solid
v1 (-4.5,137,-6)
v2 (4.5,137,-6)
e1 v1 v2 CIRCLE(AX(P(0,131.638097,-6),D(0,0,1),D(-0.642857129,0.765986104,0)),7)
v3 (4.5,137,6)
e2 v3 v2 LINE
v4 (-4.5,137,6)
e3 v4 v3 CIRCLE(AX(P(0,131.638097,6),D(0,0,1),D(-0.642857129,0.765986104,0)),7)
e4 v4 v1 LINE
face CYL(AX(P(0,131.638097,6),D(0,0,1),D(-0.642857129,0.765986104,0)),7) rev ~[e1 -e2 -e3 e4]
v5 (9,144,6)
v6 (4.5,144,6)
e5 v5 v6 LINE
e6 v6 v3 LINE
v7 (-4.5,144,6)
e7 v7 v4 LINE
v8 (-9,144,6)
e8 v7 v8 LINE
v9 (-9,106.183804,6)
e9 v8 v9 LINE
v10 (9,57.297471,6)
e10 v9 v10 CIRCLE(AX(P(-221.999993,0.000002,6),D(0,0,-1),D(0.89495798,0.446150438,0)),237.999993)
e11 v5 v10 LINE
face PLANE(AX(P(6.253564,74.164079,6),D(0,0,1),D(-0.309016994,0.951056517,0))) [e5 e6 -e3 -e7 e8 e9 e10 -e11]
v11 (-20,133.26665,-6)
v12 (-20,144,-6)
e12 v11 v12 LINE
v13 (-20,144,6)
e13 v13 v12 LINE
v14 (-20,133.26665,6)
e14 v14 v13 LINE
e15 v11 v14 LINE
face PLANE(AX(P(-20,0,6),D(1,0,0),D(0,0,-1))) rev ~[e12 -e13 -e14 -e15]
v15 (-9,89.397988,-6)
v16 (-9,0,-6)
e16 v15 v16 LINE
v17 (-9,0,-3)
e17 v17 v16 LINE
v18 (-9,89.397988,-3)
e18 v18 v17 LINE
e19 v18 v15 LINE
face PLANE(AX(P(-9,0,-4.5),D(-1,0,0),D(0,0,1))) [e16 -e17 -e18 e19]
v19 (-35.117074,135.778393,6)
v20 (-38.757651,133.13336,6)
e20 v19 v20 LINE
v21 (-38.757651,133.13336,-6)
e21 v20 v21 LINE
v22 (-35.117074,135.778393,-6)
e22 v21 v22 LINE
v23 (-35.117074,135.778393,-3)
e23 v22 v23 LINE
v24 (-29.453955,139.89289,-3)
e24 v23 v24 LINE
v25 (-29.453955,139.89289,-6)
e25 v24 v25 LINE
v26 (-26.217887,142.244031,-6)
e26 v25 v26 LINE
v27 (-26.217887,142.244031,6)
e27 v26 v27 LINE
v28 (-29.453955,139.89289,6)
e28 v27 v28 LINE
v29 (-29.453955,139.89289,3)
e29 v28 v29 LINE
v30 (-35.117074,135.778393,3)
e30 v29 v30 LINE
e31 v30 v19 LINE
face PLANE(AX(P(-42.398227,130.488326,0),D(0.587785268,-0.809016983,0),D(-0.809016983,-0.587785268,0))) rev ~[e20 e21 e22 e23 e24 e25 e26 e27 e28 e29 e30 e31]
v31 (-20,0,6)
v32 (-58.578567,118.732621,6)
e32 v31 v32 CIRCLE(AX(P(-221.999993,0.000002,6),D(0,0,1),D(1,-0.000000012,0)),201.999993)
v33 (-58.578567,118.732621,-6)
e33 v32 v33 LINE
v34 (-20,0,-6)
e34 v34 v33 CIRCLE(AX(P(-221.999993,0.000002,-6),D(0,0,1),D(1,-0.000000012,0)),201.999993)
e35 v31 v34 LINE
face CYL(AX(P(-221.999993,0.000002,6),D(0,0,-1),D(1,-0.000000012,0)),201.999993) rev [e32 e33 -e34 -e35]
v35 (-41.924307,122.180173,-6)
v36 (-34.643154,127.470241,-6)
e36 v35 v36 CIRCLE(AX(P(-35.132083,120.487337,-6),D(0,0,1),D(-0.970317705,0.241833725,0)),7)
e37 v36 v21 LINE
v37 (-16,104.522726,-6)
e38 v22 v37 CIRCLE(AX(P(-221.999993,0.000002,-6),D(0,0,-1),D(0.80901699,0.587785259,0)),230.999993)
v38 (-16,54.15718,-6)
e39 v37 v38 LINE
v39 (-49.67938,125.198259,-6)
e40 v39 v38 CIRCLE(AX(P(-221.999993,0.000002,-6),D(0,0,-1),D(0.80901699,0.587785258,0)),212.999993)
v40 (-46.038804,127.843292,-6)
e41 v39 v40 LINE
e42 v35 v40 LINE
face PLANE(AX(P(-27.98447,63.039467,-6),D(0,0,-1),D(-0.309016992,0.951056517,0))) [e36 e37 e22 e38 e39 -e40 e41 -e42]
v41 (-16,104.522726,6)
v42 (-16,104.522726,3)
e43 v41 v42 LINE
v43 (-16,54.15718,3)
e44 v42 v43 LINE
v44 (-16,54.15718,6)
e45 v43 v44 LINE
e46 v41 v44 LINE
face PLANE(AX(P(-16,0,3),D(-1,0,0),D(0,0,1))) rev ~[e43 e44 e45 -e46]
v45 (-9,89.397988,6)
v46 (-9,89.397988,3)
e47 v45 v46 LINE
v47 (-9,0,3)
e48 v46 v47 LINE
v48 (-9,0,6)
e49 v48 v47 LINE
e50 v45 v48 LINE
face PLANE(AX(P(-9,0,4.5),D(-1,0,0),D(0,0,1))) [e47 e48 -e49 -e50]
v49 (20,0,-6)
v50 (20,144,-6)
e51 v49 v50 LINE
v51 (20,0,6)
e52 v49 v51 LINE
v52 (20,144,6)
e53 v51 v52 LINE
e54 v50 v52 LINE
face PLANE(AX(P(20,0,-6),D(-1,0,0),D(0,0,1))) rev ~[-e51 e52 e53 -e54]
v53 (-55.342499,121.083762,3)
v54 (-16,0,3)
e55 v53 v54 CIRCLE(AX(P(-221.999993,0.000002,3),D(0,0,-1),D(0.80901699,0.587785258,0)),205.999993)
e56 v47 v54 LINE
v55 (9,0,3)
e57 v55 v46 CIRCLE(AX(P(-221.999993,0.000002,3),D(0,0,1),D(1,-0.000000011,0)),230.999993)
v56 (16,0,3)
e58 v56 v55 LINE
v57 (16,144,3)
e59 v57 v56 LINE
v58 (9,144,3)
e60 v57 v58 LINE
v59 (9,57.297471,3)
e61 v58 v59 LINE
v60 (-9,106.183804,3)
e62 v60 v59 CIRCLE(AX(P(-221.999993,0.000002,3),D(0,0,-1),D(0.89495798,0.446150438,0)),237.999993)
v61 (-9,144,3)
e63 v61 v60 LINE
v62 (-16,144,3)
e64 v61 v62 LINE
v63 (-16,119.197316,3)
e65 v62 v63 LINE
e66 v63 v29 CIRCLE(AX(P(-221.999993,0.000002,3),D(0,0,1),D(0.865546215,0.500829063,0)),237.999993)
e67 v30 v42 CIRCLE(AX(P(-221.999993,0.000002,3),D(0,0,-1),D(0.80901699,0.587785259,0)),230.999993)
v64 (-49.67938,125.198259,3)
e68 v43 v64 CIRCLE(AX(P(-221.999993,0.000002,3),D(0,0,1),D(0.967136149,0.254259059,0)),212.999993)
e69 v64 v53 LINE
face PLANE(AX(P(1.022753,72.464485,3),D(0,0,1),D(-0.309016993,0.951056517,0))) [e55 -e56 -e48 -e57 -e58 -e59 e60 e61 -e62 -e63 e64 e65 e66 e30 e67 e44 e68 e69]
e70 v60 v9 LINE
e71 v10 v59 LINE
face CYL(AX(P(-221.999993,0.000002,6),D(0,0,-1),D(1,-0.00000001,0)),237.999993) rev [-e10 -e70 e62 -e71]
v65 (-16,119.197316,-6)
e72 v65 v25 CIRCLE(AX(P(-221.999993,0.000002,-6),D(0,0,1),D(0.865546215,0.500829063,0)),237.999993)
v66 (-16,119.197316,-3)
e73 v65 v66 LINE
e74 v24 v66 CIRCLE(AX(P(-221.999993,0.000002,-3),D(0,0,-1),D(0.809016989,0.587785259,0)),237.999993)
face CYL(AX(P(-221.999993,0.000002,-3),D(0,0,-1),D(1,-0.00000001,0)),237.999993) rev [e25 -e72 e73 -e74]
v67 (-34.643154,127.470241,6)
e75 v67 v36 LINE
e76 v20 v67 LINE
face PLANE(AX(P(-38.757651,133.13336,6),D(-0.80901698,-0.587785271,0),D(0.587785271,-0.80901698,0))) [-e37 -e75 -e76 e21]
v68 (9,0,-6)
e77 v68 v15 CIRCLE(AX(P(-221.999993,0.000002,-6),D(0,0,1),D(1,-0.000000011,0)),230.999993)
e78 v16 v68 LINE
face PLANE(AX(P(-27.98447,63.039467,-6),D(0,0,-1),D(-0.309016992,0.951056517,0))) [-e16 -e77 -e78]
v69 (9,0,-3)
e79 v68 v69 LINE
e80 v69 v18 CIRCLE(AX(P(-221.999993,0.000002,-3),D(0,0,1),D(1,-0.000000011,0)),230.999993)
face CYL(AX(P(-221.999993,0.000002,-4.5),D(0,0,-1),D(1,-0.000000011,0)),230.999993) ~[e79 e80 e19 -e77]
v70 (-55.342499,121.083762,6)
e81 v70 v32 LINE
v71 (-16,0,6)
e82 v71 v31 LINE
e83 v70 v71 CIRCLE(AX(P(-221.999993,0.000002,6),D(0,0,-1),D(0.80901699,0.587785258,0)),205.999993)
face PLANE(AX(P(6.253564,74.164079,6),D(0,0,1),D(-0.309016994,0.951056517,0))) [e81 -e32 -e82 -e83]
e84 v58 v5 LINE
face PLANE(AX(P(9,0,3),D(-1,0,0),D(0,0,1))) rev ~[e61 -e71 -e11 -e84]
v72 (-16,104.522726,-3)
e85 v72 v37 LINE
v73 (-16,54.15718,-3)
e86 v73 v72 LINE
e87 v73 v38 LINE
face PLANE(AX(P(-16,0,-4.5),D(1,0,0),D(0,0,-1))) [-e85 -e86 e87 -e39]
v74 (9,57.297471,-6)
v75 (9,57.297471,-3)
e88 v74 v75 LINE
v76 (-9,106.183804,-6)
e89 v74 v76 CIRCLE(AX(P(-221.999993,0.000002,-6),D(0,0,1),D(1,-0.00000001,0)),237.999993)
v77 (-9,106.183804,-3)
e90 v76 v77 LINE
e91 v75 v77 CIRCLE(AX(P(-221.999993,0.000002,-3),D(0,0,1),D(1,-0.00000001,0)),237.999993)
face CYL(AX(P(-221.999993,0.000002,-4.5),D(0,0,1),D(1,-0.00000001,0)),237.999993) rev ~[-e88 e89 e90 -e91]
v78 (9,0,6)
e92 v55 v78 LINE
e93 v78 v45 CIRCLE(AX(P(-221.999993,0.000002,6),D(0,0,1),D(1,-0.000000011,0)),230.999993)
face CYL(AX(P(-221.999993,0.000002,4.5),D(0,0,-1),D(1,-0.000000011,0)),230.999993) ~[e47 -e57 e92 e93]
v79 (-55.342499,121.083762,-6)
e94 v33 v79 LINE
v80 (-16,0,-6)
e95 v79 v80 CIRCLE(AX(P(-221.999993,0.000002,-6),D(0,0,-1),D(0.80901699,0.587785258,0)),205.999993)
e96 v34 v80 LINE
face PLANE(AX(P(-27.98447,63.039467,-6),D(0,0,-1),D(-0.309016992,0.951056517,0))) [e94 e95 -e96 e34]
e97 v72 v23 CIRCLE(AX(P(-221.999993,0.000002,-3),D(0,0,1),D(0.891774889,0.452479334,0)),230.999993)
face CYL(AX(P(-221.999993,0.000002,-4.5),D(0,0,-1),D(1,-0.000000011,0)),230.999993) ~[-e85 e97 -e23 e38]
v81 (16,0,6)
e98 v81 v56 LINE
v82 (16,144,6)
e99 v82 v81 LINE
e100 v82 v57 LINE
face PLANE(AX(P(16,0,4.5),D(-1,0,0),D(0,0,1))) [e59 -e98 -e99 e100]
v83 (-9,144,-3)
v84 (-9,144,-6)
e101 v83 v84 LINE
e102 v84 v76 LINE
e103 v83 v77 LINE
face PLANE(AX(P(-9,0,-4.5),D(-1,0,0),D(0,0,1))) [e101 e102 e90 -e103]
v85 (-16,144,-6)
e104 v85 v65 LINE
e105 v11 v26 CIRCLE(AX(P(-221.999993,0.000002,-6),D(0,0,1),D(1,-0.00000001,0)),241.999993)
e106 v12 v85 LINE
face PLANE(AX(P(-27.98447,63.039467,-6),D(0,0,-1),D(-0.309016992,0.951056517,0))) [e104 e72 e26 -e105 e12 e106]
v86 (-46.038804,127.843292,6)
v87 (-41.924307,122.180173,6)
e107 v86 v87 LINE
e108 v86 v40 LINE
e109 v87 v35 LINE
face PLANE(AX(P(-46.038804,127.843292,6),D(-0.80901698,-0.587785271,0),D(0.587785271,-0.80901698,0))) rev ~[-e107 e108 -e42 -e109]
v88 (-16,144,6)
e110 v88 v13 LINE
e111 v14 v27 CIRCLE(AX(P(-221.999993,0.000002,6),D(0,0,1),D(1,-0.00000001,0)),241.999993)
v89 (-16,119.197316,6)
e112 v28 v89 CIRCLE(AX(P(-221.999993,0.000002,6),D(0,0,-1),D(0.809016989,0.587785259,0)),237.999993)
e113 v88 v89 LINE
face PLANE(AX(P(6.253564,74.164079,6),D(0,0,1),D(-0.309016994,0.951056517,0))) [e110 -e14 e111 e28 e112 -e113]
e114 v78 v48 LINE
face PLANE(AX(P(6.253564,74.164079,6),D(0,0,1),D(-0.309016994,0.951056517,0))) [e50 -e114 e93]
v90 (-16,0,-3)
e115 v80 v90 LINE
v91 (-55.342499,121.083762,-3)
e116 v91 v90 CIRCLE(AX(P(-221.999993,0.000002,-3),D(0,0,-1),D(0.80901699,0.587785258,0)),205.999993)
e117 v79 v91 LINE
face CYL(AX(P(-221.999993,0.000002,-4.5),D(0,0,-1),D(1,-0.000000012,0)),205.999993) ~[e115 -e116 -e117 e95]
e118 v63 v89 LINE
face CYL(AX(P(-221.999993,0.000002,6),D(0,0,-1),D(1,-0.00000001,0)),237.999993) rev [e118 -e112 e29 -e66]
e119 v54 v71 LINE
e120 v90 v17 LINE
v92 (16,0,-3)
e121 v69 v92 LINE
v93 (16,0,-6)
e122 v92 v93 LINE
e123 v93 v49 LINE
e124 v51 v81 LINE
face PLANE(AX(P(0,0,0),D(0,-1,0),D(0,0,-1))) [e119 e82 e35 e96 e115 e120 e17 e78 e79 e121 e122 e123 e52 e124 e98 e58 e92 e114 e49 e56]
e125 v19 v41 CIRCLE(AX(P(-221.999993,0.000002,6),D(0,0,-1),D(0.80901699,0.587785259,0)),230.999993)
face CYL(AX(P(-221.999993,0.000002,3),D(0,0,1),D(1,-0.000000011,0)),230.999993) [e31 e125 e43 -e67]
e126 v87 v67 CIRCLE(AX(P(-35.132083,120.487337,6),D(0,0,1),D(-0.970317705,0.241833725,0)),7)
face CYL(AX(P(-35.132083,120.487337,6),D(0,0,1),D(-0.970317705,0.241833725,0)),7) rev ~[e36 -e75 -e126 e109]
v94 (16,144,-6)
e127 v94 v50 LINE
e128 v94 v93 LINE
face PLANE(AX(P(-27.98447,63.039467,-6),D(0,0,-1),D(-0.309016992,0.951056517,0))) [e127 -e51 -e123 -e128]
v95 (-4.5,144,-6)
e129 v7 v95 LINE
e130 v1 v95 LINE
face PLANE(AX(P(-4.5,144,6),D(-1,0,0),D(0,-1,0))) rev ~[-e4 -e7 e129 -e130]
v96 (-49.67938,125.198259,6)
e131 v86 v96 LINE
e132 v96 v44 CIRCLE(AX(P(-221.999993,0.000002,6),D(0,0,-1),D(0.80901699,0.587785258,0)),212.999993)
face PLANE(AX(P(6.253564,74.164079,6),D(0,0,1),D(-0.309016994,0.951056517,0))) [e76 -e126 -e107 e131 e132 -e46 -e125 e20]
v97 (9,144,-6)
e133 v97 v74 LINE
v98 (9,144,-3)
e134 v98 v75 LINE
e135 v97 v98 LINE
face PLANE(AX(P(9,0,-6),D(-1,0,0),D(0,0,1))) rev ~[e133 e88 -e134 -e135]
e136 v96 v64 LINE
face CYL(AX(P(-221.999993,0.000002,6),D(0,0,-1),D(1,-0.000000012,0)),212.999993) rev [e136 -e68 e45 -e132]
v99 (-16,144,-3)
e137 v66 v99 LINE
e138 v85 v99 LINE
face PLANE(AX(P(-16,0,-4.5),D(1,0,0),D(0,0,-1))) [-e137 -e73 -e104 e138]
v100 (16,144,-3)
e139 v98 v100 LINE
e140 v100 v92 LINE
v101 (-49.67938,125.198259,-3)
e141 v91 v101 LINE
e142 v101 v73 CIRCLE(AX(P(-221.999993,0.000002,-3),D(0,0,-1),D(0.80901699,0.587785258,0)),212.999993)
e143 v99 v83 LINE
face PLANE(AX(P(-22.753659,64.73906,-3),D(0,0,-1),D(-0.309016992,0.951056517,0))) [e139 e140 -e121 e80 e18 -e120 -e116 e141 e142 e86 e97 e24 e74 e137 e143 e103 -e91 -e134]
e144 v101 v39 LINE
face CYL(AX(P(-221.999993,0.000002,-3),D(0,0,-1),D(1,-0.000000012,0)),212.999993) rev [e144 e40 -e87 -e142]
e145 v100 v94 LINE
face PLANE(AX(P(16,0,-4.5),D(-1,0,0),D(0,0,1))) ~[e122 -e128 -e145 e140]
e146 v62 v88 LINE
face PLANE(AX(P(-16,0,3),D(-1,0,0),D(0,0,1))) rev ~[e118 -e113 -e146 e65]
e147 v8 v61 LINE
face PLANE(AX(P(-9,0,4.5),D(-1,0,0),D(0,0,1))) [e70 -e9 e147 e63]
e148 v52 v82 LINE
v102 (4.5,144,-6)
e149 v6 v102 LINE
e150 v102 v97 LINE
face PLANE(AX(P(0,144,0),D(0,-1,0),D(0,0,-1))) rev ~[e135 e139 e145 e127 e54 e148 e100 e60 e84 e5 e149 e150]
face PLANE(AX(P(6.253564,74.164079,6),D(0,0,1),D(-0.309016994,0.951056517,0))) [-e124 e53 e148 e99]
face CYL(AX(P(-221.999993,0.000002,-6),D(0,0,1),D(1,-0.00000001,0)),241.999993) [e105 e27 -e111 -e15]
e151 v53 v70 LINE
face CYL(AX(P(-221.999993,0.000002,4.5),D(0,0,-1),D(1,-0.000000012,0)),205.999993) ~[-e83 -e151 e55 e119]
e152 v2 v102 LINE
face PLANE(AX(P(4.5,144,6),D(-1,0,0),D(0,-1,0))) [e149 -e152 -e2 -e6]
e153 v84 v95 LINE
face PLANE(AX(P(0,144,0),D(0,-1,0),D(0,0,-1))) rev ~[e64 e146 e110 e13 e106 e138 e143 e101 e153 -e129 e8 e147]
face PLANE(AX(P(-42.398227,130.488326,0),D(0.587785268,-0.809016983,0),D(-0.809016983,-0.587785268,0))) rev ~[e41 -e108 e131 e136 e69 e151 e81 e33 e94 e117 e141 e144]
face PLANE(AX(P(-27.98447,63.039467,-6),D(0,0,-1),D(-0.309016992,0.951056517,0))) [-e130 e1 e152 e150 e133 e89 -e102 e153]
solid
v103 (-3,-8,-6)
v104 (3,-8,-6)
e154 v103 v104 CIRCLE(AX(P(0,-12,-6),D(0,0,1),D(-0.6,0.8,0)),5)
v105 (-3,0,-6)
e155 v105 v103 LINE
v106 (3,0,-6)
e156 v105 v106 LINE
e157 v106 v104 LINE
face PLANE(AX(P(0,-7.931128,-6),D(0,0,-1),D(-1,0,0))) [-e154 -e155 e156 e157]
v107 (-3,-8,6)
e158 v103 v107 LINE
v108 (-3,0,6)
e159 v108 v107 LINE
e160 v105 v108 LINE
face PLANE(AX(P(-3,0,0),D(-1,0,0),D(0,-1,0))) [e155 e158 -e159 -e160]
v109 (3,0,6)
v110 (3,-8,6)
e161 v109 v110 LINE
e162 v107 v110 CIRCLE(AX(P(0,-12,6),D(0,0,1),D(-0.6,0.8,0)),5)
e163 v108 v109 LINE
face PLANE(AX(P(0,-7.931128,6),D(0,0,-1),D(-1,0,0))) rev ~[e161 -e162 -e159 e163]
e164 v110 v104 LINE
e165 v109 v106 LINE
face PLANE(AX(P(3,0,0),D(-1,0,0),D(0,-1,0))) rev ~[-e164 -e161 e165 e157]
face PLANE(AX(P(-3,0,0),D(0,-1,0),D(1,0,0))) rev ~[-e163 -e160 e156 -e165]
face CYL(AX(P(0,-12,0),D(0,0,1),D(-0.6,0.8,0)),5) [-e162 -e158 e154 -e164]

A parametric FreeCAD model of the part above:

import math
import FreeCAD as App
import Part
import Sketcher
from FreeCAD import Vector
Q = App.Units.Quantity

doc = App.newDocument("Part")
body = doc.addObject("PartDesign::Body", "Body")

sketch1 = body.newObject("Sketcher::SketchObject", "Sketch")
sketch1.AttachmentSupport = (doc.getObject("XZ_Plane"), [""])
sketch1.MapMode = "FlatFace"
sketch1.addGeometry(Part.LineSegment(Vector(-20, 6, 0), Vector(-20, -6, 0)), False)
sketch1.addGeometry(Part.LineSegment(Vector(-20, -6, 0), Vector(-16, -6, 0)), False)
sketch1.addGeometry(Part.LineSegment(Vector(-16, -6, 0), Vector(-16, -3, 0)), False)
sketch1.addGeometry(Part.LineSegment(Vector(-16, -3, 0), Vector(-9, -3, 0)), False)
sketch1.addGeometry(Part.LineSegment(Vector(-9, -3, 0), Vector(-9, -6, 0)), False)
sketch1.addGeometry(Part.LineSegment(Vector(-9, -6, 0), Vector(9, -6, 0)), False)
sketch1.addGeometry(Part.LineSegment(Vector(9, -6, 0), Vector(9, -3, 0)), False)
sketch1.addGeometry(Part.LineSegment(Vector(9, -3, 0), Vector(16, -3, 0)), False)
sketch1.addGeometry(Part.LineSegment(Vector(16, -3, 0), Vector(16, -6, 0)), False)
sketch1.addGeometry(Part.LineSegment(Vector(16, -6, 0), Vector(20, -6, 0)), False)
sketch1.addGeometry(Part.LineSegment(Vector(20, -6, 0), Vector(20, 6, 0)), False)
sketch1.addGeometry(Part.LineSegment(Vector(20, 6, 0), Vector(16, 6, 0)), False)
sketch1.addGeometry(Part.LineSegment(Vector(16, 6, 0), Vector(16, 3, 0)), False)
sketch1.addGeometry(Part.LineSegment(Vector(16, 3, 0), Vector(9, 3, 0)), False)
sketch1.addGeometry(Part.LineSegment(Vector(9, 3, 0), Vector(9, 6, 0)), False)
sketch1.addGeometry(Part.LineSegment(Vector(9, 6, 0), Vector(-9, 6, 0)), False)
sketch1.addGeometry(Part.LineSegment(Vector(-9, 6, 0), Vector(-9, 3, 0)), False)
sketch1.addGeometry(Part.LineSegment(Vector(-9, 3, 0), Vector(-16, 3, 0)), False)
sketch1.addGeometry(Part.LineSegment(Vector(-16, 3, 0), Vector(-16, 6, 0)), False)
sketch1.addGeometry(Part.LineSegment(Vector(-16, 6, 0), Vector(-20, 6, 0)), False)
sketch1.addConstraint(Sketcher.Constraint("Coincident", 0, 2, 1, 1))
sketch1.addConstraint(Sketcher.Constraint("Coincident", 1, 2, 2, 1))
sketch1.addConstraint(Sketcher.Constraint("Coincident", 2, 2, 3, 1))
sketch1.addConstraint(Sketcher.Constraint("Coincident", 3, 2, 4, 1))
sketch1.addConstraint(Sketcher.Constraint("Coincident", 4, 2, 5, 1))
sketch1.addConstraint(Sketcher.Constraint("Coincident", 5, 2, 6, 1))
sketch1.addConstraint(Sketcher.Constraint("Coincident", 6, 2, 7, 1))
sketch1.addConstraint(Sketcher.Constraint("Coincident", 7, 2, 8, 1))
sketch1.addConstraint(Sketcher.Constraint("Coincident", 8, 2, 9, 1))
sketch1.addConstraint(Sketcher.Constraint("Coincident", 9, 2, 10, 1))
sketch1.addConstraint(Sketcher.Constraint("Coincident", 10, 2, 11, 1))
sketch1.addConstraint(Sketcher.Constraint("Coincident", 11, 2, 12, 1))
sketch1.addConstraint(Sketcher.Constraint("Coincident", 12, 2, 13, 1))
sketch1.addConstraint(Sketcher.Constraint("Coincident", 13, 2, 14, 1))
sketch1.addConstraint(Sketcher.Constraint("Coincident", 14, 2, 15, 1))
sketch1.addConstraint(Sketcher.Constraint("Coincident", 15, 2, 16, 1))
sketch1.addConstraint(Sketcher.Constraint("Coincident", 16, 2, 17, 1))
sketch1.addConstraint(Sketcher.Constraint("Coincident", 17, 2, 18, 1))
sketch1.addConstraint(Sketcher.Constraint("Coincident", 18, 2, 19, 1))
sketch1.addConstraint(Sketcher.Constraint("Coincident", 19, 2, 0, 1))
sketch1.addConstraint(Sketcher.Constraint("Vertical", 0))
sketch1.addConstraint(Sketcher.Constraint("Horizontal", 1))
sketch1.addConstraint(Sketcher.Constraint("Vertical", 2))
sketch1.addConstraint(Sketcher.Constraint("Horizontal", 3))
sketch1.addConstraint(Sketcher.Constraint("Vertical", 4))
sketch1.addConstraint(Sketcher.Constraint("Horizontal", 5))
sketch1.addConstraint(Sketcher.Constraint("Vertical", 6))
sketch1.addConstraint(Sketcher.Constraint("Horizontal", 7))
sketch1.addConstraint(Sketcher.Constraint("Vertical", 8))
sketch1.addConstraint(Sketcher.Constraint("Horizontal", 9))
sketch1.addConstraint(Sketcher.Constraint("Vertical", 10))
sketch1.addConstraint(Sketcher.Constraint("Horizontal", 11))
sketch1.addConstraint(Sketcher.Constraint("Vertical", 12))
sketch1.addConstraint(Sketcher.Constraint("Horizontal", 13))
sketch1.addConstraint(Sketcher.Constraint("Vertical", 14))
sketch1.addConstraint(Sketcher.Constraint("Horizontal", 15))
sketch1.addConstraint(Sketcher.Constraint("Vertical", 16))
sketch1.addConstraint(Sketcher.Constraint("Horizontal", 17))
sketch1.addConstraint(Sketcher.Constraint("Vertical", 18))
sketch1.addConstraint(Sketcher.Constraint("Horizontal", 19))
sketch1.addConstraint(Sketcher.Constraint("Symmetric", 0, 2, 10, 2, -1, 1))
sketch1.addConstraint(Sketcher.Constraint("Symmetric", 2, 2, 12, 2, -1, 1))
sketch1.addConstraint(Sketcher.Constraint("Symmetric", 4, 2, 14, 2, -1, 1))
sketch1.addConstraint(Sketcher.Constraint("Symmetric", 6, 2, 16, 2, -1, 1))
sketch1.addConstraint(Sketcher.Constraint("Symmetric", 8, 2, 18, 2, -1, 1))
sketch1.addConstraint(Sketcher.Constraint("Symmetric", 3, 2, 6, 2, -2))
sketch1.addConstraint(Sketcher.Constraint("Symmetric", 1, 2, 8, 2, -2))
sketch1.addConstraint(Sketcher.Constraint("Horizontal", 1, 2, 4, 2))
sketch1.addConstraint(Sketcher.Constraint("DistanceX", 1, 1, 1, 2, 4.0))
sketch1.addConstraint(Sketcher.Constraint("DistanceX", 3, 1, 3, 2, 7.0))
sketch1.addConstraint(Sketcher.Constraint("DistanceX", 5, 1, 5, 2, 18.0))
sketch1.addConstraint(Sketcher.Constraint("DistanceY", 0, 2, 0, 1, 12.0))
sketch1.addConstraint(Sketcher.Constraint("DistanceY", 2, 1, 2, 2, 3.0))

sketch2 = body.newObject("Sketcher::SketchObject", "Sketch001")
sketch2.AttachmentSupport = (doc.getObject("XY_Plane"), [""])
sketch2.MapMode = "FlatFace"
sketch2.addGeometry(Part.ArcOfCircle(Part.Circle(Vector(-222, 0, 0), Vector(0, 0, 1), 222), math.radians(0), math.radians(36)), False)
sketch2.addConstraint(Sketcher.Constraint("Coincident", 0, 1, -1, 1))
sketch2.addConstraint(Sketcher.Constraint("Radius", 0, 221.999993))
sketch2.addConstraint(Sketcher.Constraint("DistanceX", 0, 2, -1, 1, 42.398227))
sketch2.addConstraint(Sketcher.Constraint("DistanceY", -1, 1, 0, 2, 130.488326))
doc.recompute()

additivepipe = body.newObject("PartDesign::AdditivePipe", "AdditivePipe")
additivepipe.Profile = sketch1
additivepipe.Spine = (sketch2, ["Edge1"])

sketch3 = body.newObject("Sketcher::SketchObject", "Sketch002")
sketch3.AttachmentSupport = (doc.getObject("XZ_Plane"), [""])
sketch3.MapMode = "FlatFace"
sketch3.addGeometry(Part.LineSegment(Vector(-20, 6, 0), Vector(-20, -6, 0)), False)
sketch3.addGeometry(Part.LineSegment(Vector(-20, -6, 0), Vector(-16, -6, 0)), False)
sketch3.addGeometry(Part.LineSegment(Vector(-16, -6, 0), Vector(-16, -3, 0)), False)
sketch3.addGeometry(Part.LineSegment(Vector(-16, -3, 0), Vector(-9, -3, 0)), False)
sketch3.addGeometry(Part.LineSegment(Vector(-9, -3, 0), Vector(-9, -6, 0)), False)
sketch3.addGeometry(Part.LineSegment(Vector(-9, -6, 0), Vector(9, -6, 0)), False)
sketch3.addGeometry(Part.LineSegment(Vector(9, -6, 0), Vector(9, -3, 0)), False)
sketch3.addGeometry(Part.LineSegment(Vector(9, -3, 0), Vector(16, -3, 0)), False)
sketch3.addGeometry(Part.LineSegment(Vector(16, -3, 0), Vector(16, -6, 0)), False)
sketch3.addGeometry(Part.LineSegment(Vector(16, -6, 0), Vector(20, -6, 0)), False)
sketch3.addGeometry(Part.LineSegment(Vector(20, -6, 0), Vector(20, 6, 0)), False)
sketch3.addGeometry(Part.LineSegment(Vector(20, 6, 0), Vector(16, 6, 0)), False)
sketch3.addGeometry(Part.LineSegment(Vector(16, 6, 0), Vector(16, 3, 0)), False)
sketch3.addGeometry(Part.LineSegment(Vector(16, 3, 0), Vector(9, 3, 0)), False)
sketch3.addGeometry(Part.LineSegment(Vector(9, 3, 0), Vector(9, 6, 0)), False)
sketch3.addGeometry(Part.LineSegment(Vector(9, 6, 0), Vector(-9, 6, 0)), False)
sketch3.addGeometry(Part.LineSegment(Vector(-9, 6, 0), Vector(-9, 3, 0)), False)
sketch3.addGeometry(Part.LineSegment(Vector(-9, 3, 0), Vector(-16, 3, 0)), False)
sketch3.addGeometry(Part.LineSegment(Vector(-16, 3, 0), Vector(-16, 6, 0)), False)
sketch3.addGeometry(Part.LineSegment(Vector(-16, 6, 0), Vector(-20, 6, 0)), False)
sketch3.addConstraint(Sketcher.Constraint("Coincident", 0, 2, 1, 1))
sketch3.addConstraint(Sketcher.Constraint("Coincident", 1, 2, 2, 1))
sketch3.addConstraint(Sketcher.Constraint("Coincident", 2, 2, 3, 1))
sketch3.addConstraint(Sketcher.Constraint("Coincident", 3, 2, 4, 1))
sketch3.addConstraint(Sketcher.Constraint("Coincident", 4, 2, 5, 1))
sketch3.addConstraint(Sketcher.Constraint("Coincident", 5, 2, 6, 1))
sketch3.addConstraint(Sketcher.Constraint("Coincident", 6, 2, 7, 1))
sketch3.addConstraint(Sketcher.Constraint("Coincident", 7, 2, 8, 1))
sketch3.addConstraint(Sketcher.Constraint("Coincident", 8, 2, 9, 1))
sketch3.addConstraint(Sketcher.Constraint("Coincident", 9, 2, 10, 1))
sketch3.addConstraint(Sketcher.Constraint("Coincident", 10, 2, 11, 1))
sketch3.addConstraint(Sketcher.Constraint("Coincident", 11, 2, 12, 1))
sketch3.addConstraint(Sketcher.Constraint("Coincident", 12, 2, 13, 1))
sketch3.addConstraint(Sketcher.Constraint("Coincident", 13, 2, 14, 1))
sketch3.addConstraint(Sketcher.Constraint("Coincident", 14, 2, 15, 1))
sketch3.addConstraint(Sketcher.Constraint("Coincident", 15, 2, 16, 1))
sketch3.addConstraint(Sketcher.Constraint("Coincident", 16, 2, 17, 1))
sketch3.addConstraint(Sketcher.Constraint("Coincident", 17, 2, 18, 1))
sketch3.addConstraint(Sketcher.Constraint("Coincident", 18, 2, 19, 1))
sketch3.addConstraint(Sketcher.Constraint("Coincident", 19, 2, 0, 1))
sketch3.addConstraint(Sketcher.Constraint("Vertical", 0))
sketch3.addConstraint(Sketcher.Constraint("Horizontal", 1))
sketch3.addConstraint(Sketcher.Constraint("Vertical", 2))
sketch3.addConstraint(Sketcher.Constraint("Horizontal", 3))
sketch3.addConstraint(Sketcher.Constraint("Vertical", 4))
sketch3.addConstraint(Sketcher.Constraint("Horizontal", 5))
sketch3.addConstraint(Sketcher.Constraint("Vertical", 6))
sketch3.addConstraint(Sketcher.Constraint("Horizontal", 7))
sketch3.addConstraint(Sketcher.Constraint("Vertical", 8))
sketch3.addConstraint(Sketcher.Constraint("Horizontal", 9))
sketch3.addConstraint(Sketcher.Constraint("Vertical", 10))
sketch3.addConstraint(Sketcher.Constraint("Horizontal", 11))
sketch3.addConstraint(Sketcher.Constraint("Vertical", 12))
sketch3.addConstraint(Sketcher.Constraint("Horizontal", 13))
sketch3.addConstraint(Sketcher.Constraint("Vertical", 14))
sketch3.addConstraint(Sketcher.Constraint("Horizontal", 15))
sketch3.addConstraint(Sketcher.Constraint("Vertical", 16))
sketch3.addConstraint(Sketcher.Constraint("Horizontal", 17))
sketch3.addConstraint(Sketcher.Constraint("Vertical", 18))
sketch3.addConstraint(Sketcher.Constraint("Horizontal", 19))
sketch3.addConstraint(Sketcher.Constraint("Symmetric", 0, 2, 10, 2, -1, 1))
sketch3.addConstraint(Sketcher.Constraint("Symmetric", 2, 2, 12, 2, -1, 1))
sketch3.addConstraint(Sketcher.Constraint("Symmetric", 4, 2, 14, 2, -1, 1))
sketch3.addConstraint(Sketcher.Constraint("Symmetric", 6, 2, 16, 2, -1, 1))
sketch3.addConstraint(Sketcher.Constraint("Symmetric", 8, 2, 18, 2, -1, 1))
sketch3.addConstraint(Sketcher.Constraint("Symmetric", 3, 2, 6, 2, -2))
sketch3.addConstraint(Sketcher.Constraint("Symmetric", 1, 2, 8, 2, -2))
sketch3.addConstraint(Sketcher.Constraint("Horizontal", 1, 2, 4, 2))
sketch3.addConstraint(Sketcher.Constraint("DistanceX", 1, 1, 1, 2, 4.0))
sketch3.addConstraint(Sketcher.Constraint("DistanceX", 3, 1, 3, 2, 7.0))
sketch3.addConstraint(Sketcher.Constraint("DistanceX", 5, 1, 5, 2, 18.0))
sketch3.addConstraint(Sketcher.Constraint("DistanceY", 0, 2, 0, 1, 12.0))
sketch3.addConstraint(Sketcher.Constraint("DistanceY", 2, 1, 2, 2, 3.0))

sketch4 = body.newObject("Sketcher::SketchObject", "Sketch003")
sketch4.AttachmentSupport = (doc.getObject("XY_Plane"), [""])
sketch4.MapMode = "FlatFace"
sketch4.addGeometry(Part.LineSegment(Vector(0, 0, 0), Vector(0, 144, 0)), False)
sketch4.addConstraint(Sketcher.Constraint("Vertical", 0))
sketch4.addConstraint(Sketcher.Constraint("Coincident", 0, 1, -1, 1))
sketch4.addConstraint(Sketcher.Constraint("DistanceY", 0, 1, 0, 2, 144.0))
doc.recompute()

additivepipe2 = body.newObject("PartDesign::AdditivePipe", "AdditivePipe001")
additivepipe2.Profile = sketch3
additivepipe2.Spine = (sketch4, ["Edge1"])

sketch5 = body.newObject("Sketcher::SketchObject", "Sketch004")
sketch5.AttachmentSupport = (doc.getObject("XZ_Plane"), [""])
sketch5.MapMode = "FlatFace"
sketch5.addGeometry(Part.LineSegment(Vector(-16, 6, 0), Vector(-16, 3, 0)), False)
sketch5.addGeometry(Part.LineSegment(Vector(-16, 3, 0), Vector(-9, 3, 0)), False)
sketch5.addGeometry(Part.LineSegment(Vector(-9, 3, 0), Vector(-9, 6, 0)), False)
sketch5.addGeometry(Part.LineSegment(Vector(-9, 6, 0), Vector(-16, 6, 0)), False)
sketch5.addConstraint(Sketcher.Constraint("Coincident", 0, 2, 1, 1))
sketch5.addConstraint(Sketcher.Constraint("Coincident", 1, 2, 2, 1))
sketch5.addConstraint(Sketcher.Constraint("Coincident", 2, 2, 3, 1))
sketch5.addConstraint(Sketcher.Constraint("Coincident", 3, 2, 0, 1))
sketch5.addConstraint(Sketcher.Constraint("Vertical", 0))
sketch5.addConstraint(Sketcher.Constraint("Horizontal", 1))
sketch5.addConstraint(Sketcher.Constraint("Vertical", 2))
sketch5.addConstraint(Sketcher.Constraint("Horizontal", 3))
sketch5.addConstraint(Sketcher.Constraint("DistanceX", 1, 1, 1, 2, 7.0))
sketch5.addConstraint(Sketcher.Constraint("DistanceY", 0, 2, 0, 1, 3.0))
sketch5.addConstraint(Sketcher.Constraint("DistanceX", 0, 2, -1, 1, 16.0))
sketch5.addConstraint(Sketcher.Constraint("DistanceY", -1, 1, 0, 2, 3.0))

sketch6 = body.newObject("Sketcher::SketchObject", "Sketch005")
sketch6.AttachmentSupport = (doc.getObject("XY_Plane"), [""])
sketch6.MapMode = "FlatFace"
sketch6.addGeometry(Part.LineSegment(Vector(0, 0, 0), Vector(0, 144, 0)), False)
sketch6.addConstraint(Sketcher.Constraint("Vertical", 0))
sketch6.addConstraint(Sketcher.Constraint("Coincident", 0, 1, -1, 1))
sketch6.addConstraint(Sketcher.Constraint("DistanceY", 0, 1, 0, 2, 144.0))
doc.recompute()

subtractivepipe = body.newObject("PartDesign::SubtractivePipe", "SubtractivePipe")
subtractivepipe.Profile = sketch5
subtractivepipe.Spine = (sketch6, ["Edge1"])

sketch7 = body.newObject("Sketcher::SketchObject", "Sketch006")
sketch7.AttachmentSupport = (doc.getObject("XZ_Plane"), [""])
sketch7.MapMode = "FlatFace"
sketch7.addGeometry(Part.LineSegment(Vector(-16, 6, 0), Vector(-16, 3, 0)), False)
sketch7.addGeometry(Part.LineSegment(Vector(-16, 3, 0), Vector(-9, 3, 0)), False)
sketch7.addGeometry(Part.LineSegment(Vector(-9, 3, 0), Vector(-9, 6, 0)), False)
sketch7.addGeometry(Part.LineSegment(Vector(-9, 6, 0), Vector(-16, 6, 0)), False)
sketch7.addConstraint(Sketcher.Constraint("Coincident", 0, 2, 1, 1))
sketch7.addConstraint(Sketcher.Constraint("Coincident", 1, 2, 2, 1))
sketch7.addConstraint(Sketcher.Constraint("Coincident", 2, 2, 3, 1))
sketch7.addConstraint(Sketcher.Constraint("Coincident", 3, 2, 0, 1))
sketch7.addConstraint(Sketcher.Constraint("Vertical", 0))
sketch7.addConstraint(Sketcher.Constraint("Horizontal", 1))
sketch7.addConstraint(Sketcher.Constraint("Vertical", 2))
sketch7.addConstraint(Sketcher.Constraint("Horizontal", 3))
sketch7.addConstraint(Sketcher.Constraint("DistanceX", 1, 1, 1, 2, 7.0))
sketch7.addConstraint(Sketcher.Constraint("DistanceY", 0, 2, 0, 1, 3.0))
sketch7.addConstraint(Sketcher.Constraint("DistanceX", 0, 2, -1, 1, 16.0))
sketch7.addConstraint(Sketcher.Constraint("DistanceY", -1, 1, 0, 2, 3.0))

sketch8 = body.newObject("Sketcher::SketchObject", "Sketch007")
sketch8.AttachmentSupport = (doc.getObject("XY_Plane"), [""])
sketch8.MapMode = "FlatFace"
sketch8.addGeometry(Part.ArcOfCircle(Part.Circle(Vector(-222, 0, 0), Vector(0, 0, 1), 222), math.radians(0), math.radians(36)), False)
sketch8.addConstraint(Sketcher.Constraint("Coincident", 0, 1, -1, 1))
sketch8.addConstraint(Sketcher.Constraint("Radius", 0, 221.999993))
sketch8.addConstraint(Sketcher.Constraint("DistanceX", 0, 2, -1, 1, 42.398227))
sketch8.addConstraint(Sketcher.Constraint("DistanceY", -1, 1, 0, 2, 130.488326))
doc.recompute()

subtractivepipe2 = body.newObject("PartDesign::SubtractivePipe", "SubtractivePipe001")
subtractivepipe2.Profile = sketch7
subtractivepipe2.Spine = (sketch8, ["Edge1"])

sketch9 = body.newObject("Sketcher::SketchObject", "Sketch008")
sketch9.AttachmentSupport = (doc.getObject("XZ_Plane"), [""])
sketch9.MapMode = "FlatFace"
sketch9.addGeometry(Part.LineSegment(Vector(9, 6, 0), Vector(9, 3, 0)), False)
sketch9.addGeometry(Part.LineSegment(Vector(9, 3, 0), Vector(16, 3, 0)), False)
sketch9.addGeometry(Part.LineSegment(Vector(16, 3, 0), Vector(16, 6, 0)), False)
sketch9.addGeometry(Part.LineSegment(Vector(16, 6, 0), Vector(9, 6, 0)), False)
sketch9.addConstraint(Sketcher.Constraint("Coincident", 0, 2, 1, 1))
sketch9.addConstraint(Sketcher.Constraint("Coincident", 1, 2, 2, 1))
sketch9.addConstraint(Sketcher.Constraint("Coincident", 2, 2, 3, 1))
sketch9.addConstraint(Sketcher.Constraint("Coincident", 3, 2, 0, 1))
sketch9.addConstraint(Sketcher.Constraint("Vertical", 0))
sketch9.addConstraint(Sketcher.Constraint("Horizontal", 1))
sketch9.addConstraint(Sketcher.Constraint("Vertical", 2))
sketch9.addConstraint(Sketcher.Constraint("Horizontal", 3))
sketch9.addConstraint(Sketcher.Constraint("DistanceX", 1, 1, 1, 2, 7.0))
sketch9.addConstraint(Sketcher.Constraint("DistanceY", 0, 2, 0, 1, 3.0))
sketch9.addConstraint(Sketcher.Constraint("DistanceX", -1, 1, 0, 2, 9.0))
sketch9.addConstraint(Sketcher.Constraint("DistanceY", -1, 1, 0, 2, 3.0))

sketch10 = body.newObject("Sketcher::SketchObject", "Sketch009")
sketch10.AttachmentSupport = (doc.getObject("XY_Plane"), [""])
sketch10.MapMode = "FlatFace"
sketch10.addGeometry(Part.ArcOfCircle(Part.Circle(Vector(-222, 0, 0), Vector(0, 0, 1), 222), math.radians(0), math.radians(36)), False)
sketch10.addConstraint(Sketcher.Constraint("Coincident", 0, 1, -1, 1))
sketch10.addConstraint(Sketcher.Constraint("Radius", 0, 221.999993))
sketch10.addConstraint(Sketcher.Constraint("DistanceX", 0, 2, -1, 1, 42.398227))
sketch10.addConstraint(Sketcher.Constraint("DistanceY", -1, 1, 0, 2, 130.488326))
doc.recompute()

subtractivepipe3 = body.newObject("PartDesign::SubtractivePipe", "SubtractivePipe002")
subtractivepipe3.Profile = sketch9
subtractivepipe3.Spine = (sketch10, ["Edge1"])

sketch11 = body.newObject("Sketcher::SketchObject", "Sketch010")
sketch11.AttachmentSupport = (doc.getObject("XZ_Plane"), [""])
sketch11.MapMode = "FlatFace"
sketch11.addGeometry(Part.LineSegment(Vector(9, 6, 0), Vector(9, 3, 0)), False)
sketch11.addGeometry(Part.LineSegment(Vector(9, 3, 0), Vector(16, 3, 0)), False)
sketch11.addGeometry(Part.LineSegment(Vector(16, 3, 0), Vector(16, 6, 0)), False)
sketch11.addGeometry(Part.LineSegment(Vector(16, 6, 0), Vector(9, 6, 0)), False)
sketch11.addConstraint(Sketcher.Constraint("Coincident", 0, 2, 1, 1))
sketch11.addConstraint(Sketcher.Constraint("Coincident", 1, 2, 2, 1))
sketch11.addConstraint(Sketcher.Constraint("Coincident", 2, 2, 3, 1))
sketch11.addConstraint(Sketcher.Constraint("Coincident", 3, 2, 0, 1))
sketch11.addConstraint(Sketcher.Constraint("Vertical", 0))
sketch11.addConstraint(Sketcher.Constraint("Horizontal", 1))
sketch11.addConstraint(Sketcher.Constraint("Vertical", 2))
sketch11.addConstraint(Sketcher.Constraint("Horizontal", 3))
sketch11.addConstraint(Sketcher.Constraint("DistanceX", 1, 1, 1, 2, 7.0))
sketch11.addConstraint(Sketcher.Constraint("DistanceY", 0, 2, 0, 1, 3.0))
sketch11.addConstraint(Sketcher.Constraint("DistanceX", -1, 1, 0, 2, 9.0))
sketch11.addConstraint(Sketcher.Constraint("DistanceY", -1, 1, 0, 2, 3.0))

sketch12 = body.newObject("Sketcher::SketchObject", "Sketch011")
sketch12.AttachmentSupport = (doc.getObject("XY_Plane"), [""])
sketch12.MapMode = "FlatFace"
sketch12.addGeometry(Part.LineSegment(Vector(0, 0, 0), Vector(0, 144, 0)), False)
sketch12.addConstraint(Sketcher.Constraint("Vertical", 0))
sketch12.addConstraint(Sketcher.Constraint("Coincident", 0, 1, -1, 1))
sketch12.addConstraint(Sketcher.Constraint("DistanceY", 0, 1, 0, 2, 144.0))
doc.recompute()

subtractivepipe4 = body.newObject("PartDesign::SubtractivePipe", "SubtractivePipe003")
subtractivepipe4.Profile = sketch11
subtractivepipe4.Spine = (sketch12, ["Edge1"])
doc.recompute()

mirrored = body.newObject("PartDesign::Mirrored", "Mirrored")
mirrored.Originals = [subtractivepipe4]
mirrored.MirrorPlane = (doc.getObject("XY_Plane"), [""])
body.Tip = mirrored

sketch13 = body.newObject("Sketcher::SketchObject", "Sketch012")
sketch13.AttachmentSupport = (doc.getObject("XY_Plane"), [""])
sketch13.MapMode = "FlatFace"
sketch13.AttachmentOffset = App.Placement(Vector(0, 0, 6), App.Rotation())
sketch13.addGeometry(Part.LineSegment(Vector(-39, 133, 0), Vector(-46, 128, 0)), False)
sketch13.addGeometry(Part.LineSegment(Vector(-46, 128, 0), Vector(-42, 122, 0)), False)
sketch13.addGeometry(Part.ArcOfCircle(Part.Circle(Vector(-35, 120, 0), Vector(0, 0, 1), 7), math.radians(166), math.radians(446)), False)
sketch13.addGeometry(Part.LineSegment(Vector(-35, 127, 0), Vector(-39, 133, 0)), False)
sketch13.addConstraint(Sketcher.Constraint("Coincident", 0, 2, 1, 1))
sketch13.addConstraint(Sketcher.Constraint("Coincident", 1, 2, 2, 1))
sketch13.addConstraint(Sketcher.Constraint("Coincident", 2, 2, 3, 1))
sketch13.addConstraint(Sketcher.Constraint("Coincident", 3, 2, 0, 1))
sketch13.addConstraint(Sketcher.Constraint("Perpendicular", 0, 1))
sketch13.addConstraint(Sketcher.Constraint("Parallel", 1, 3))
sketch13.addConstraint(Sketcher.Constraint("Equal", 1, 3))
sketch13.addConstraint(Sketcher.Constraint("Radius", 2, 7.0))
sketch13.addConstraint(Sketcher.Constraint("Angle", 0, Q("-143.999996 deg")))
sketch13.addConstraint(Sketcher.Constraint("Distance", 0, 9.0))
sketch13.addConstraint(Sketcher.Constraint("Distance", 1, 7.0))
sketch13.addConstraint(Sketcher.Constraint("DistanceY", -1, 1, 2, 2, 127.470241))
sketch13.addConstraint(Sketcher.Constraint("DistanceX", 3, 2, -1, 1, 38.757651))
pocket1 = body.newObject("PartDesign::Pocket", "Pocket")
pocket1.Profile = sketch13
pocket1.Type = "ThroughAll"

sketch14 = body.newObject("Sketcher::SketchObject", "Sketch013")
sketch14.AttachmentSupport = (doc.getObject("XY_Plane"), [""])
sketch14.MapMode = "FlatFace"
sketch14.AttachmentOffset = App.Placement(Vector(0, 0, 6), App.Rotation())
sketch14.addGeometry(Part.LineSegment(Vector(4, 144, 0), Vector(-4, 144, 0)), False)
sketch14.addGeometry(Part.LineSegment(Vector(-4, 144, 0), Vector(-4, 137, 0)), False)
sketch14.addGeometry(Part.ArcOfCircle(Part.Circle(Vector(0, 132, 0), Vector(0, 0, 1), 7), math.radians(130), math.radians(410)), False)
sketch14.addGeometry(Part.LineSegment(Vector(4, 137, 0), Vector(4, 144, 0)), False)
sketch14.addConstraint(Sketcher.Constraint("Coincident", 0, 2, 1, 1))
sketch14.addConstraint(Sketcher.Constraint("Coincident", 1, 2, 2, 1))
sketch14.addConstraint(Sketcher.Constraint("Coincident", 2, 2, 3, 1))
sketch14.addConstraint(Sketcher.Constraint("Coincident", 3, 2, 0, 1))
sketch14.addConstraint(Sketcher.Constraint("Horizontal", 0))
sketch14.addConstraint(Sketcher.Constraint("Vertical", 1))
sketch14.addConstraint(Sketcher.Constraint("Vertical", 3))
sketch14.addConstraint(Sketcher.Constraint("Symmetric", 1, 2, 2, 2, -2))
sketch14.addConstraint(Sketcher.Constraint("Radius", 2, 7.0))
sketch14.addConstraint(Sketcher.Constraint("DistanceX", 0, 2, 0, 1, 9.0))
sketch14.addConstraint(Sketcher.Constraint("DistanceY", 1, 2, 1, 1, 7.0))
sketch14.addConstraint(Sketcher.Constraint("DistanceY", -1, 1, 0, 2, 144.0))
pocket2 = body.newObject("PartDesign::Pocket", "Pocket001")
pocket2.Profile = sketch14
pocket2.Type = "ThroughAll"

sketch15 = body.newObject("Sketcher::SketchObject", "Sketch014")
sketch15.AttachmentSupport = (doc.getObject("XZ_Plane"), [""])
sketch15.MapMode = "FlatFace"
sketch15.addGeometry(Part.LineSegment(Vector(-16, -3, 0), Vector(-16, -6, 0)), False)
sketch15.addGeometry(Part.LineSegment(Vector(-16, -6, 0), Vector(-9, -6, 0)), False)
sketch15.addGeometry(Part.LineSegment(Vector(-9, -6, 0), Vector(-9, -3, 0)), False)
sketch15.addGeometry(Part.LineSegment(Vector(-9, -3, 0), Vector(-16, -3, 0)), False)
sketch15.addConstraint(Sketcher.Constraint("Coincident", 0, 2, 1, 1))
sketch15.addConstraint(Sketcher.Constraint("Coincident", 1, 2, 2, 1))
sketch15.addConstraint(Sketcher.Constraint("Coincident", 2, 2, 3, 1))
sketch15.addConstraint(Sketcher.Constraint("Coincident", 3, 2, 0, 1))
sketch15.addConstraint(Sketcher.Constraint("Vertical", 0))
sketch15.addConstraint(Sketcher.Constraint("Horizontal", 1))
sketch15.addConstraint(Sketcher.Constraint("Vertical", 2))
sketch15.addConstraint(Sketcher.Constraint("Horizontal", 3))
sketch15.addConstraint(Sketcher.Constraint("DistanceX", 1, 1, 1, 2, 7.0))
sketch15.addConstraint(Sketcher.Constraint("DistanceY", 0, 2, 0, 1, 3.0))
sketch15.addConstraint(Sketcher.Constraint("DistanceX", 0, 2, -1, 1, 16.0))
sketch15.addConstraint(Sketcher.Constraint("DistanceY", 0, 2, -1, 1, 6.0))

sketch16 = body.newObject("Sketcher::SketchObject", "Sketch015")
sketch16.AttachmentSupport = (doc.getObject("XY_Plane"), [""])
sketch16.MapMode = "FlatFace"
sketch16.addGeometry(Part.ArcOfCircle(Part.Circle(Vector(-222, 0, 0), Vector(0, 0, 1), 222), math.radians(0), math.radians(36)), False)
sketch16.addConstraint(Sketcher.Constraint("Coincident", 0, 1, -1, 1))
sketch16.addConstraint(Sketcher.Constraint("Radius", 0, 221.999993))
sketch16.addConstraint(Sketcher.Constraint("DistanceX", 0, 2, -1, 1, 42.398227))
sketch16.addConstraint(Sketcher.Constraint("DistanceY", -1, 1, 0, 2, 130.488326))
doc.recompute()

subtractivepipe5 = body.newObject("PartDesign::SubtractivePipe", "SubtractivePipe004")
subtractivepipe5.Profile = sketch15
subtractivepipe5.Spine = (sketch16, ["Edge1"])

sketch17 = body.newObject("Sketcher::SketchObject", "Sketch016")
sketch17.AttachmentSupport = (doc.getObject("XZ_Plane"), [""])
sketch17.MapMode = "FlatFace"
sketch17.addGeometry(Part.LineSegment(Vector(-16, -3, 0), Vector(-16, -6, 0)), False)
sketch17.addGeometry(Part.LineSegment(Vector(-16, -6, 0), Vector(-9, -6, 0)), False)
sketch17.addGeometry(Part.LineSegment(Vector(-9, -6, 0), Vector(-9, -3, 0)), False)
sketch17.addGeometry(Part.LineSegment(Vector(-9, -3, 0), Vector(-16, -3, 0)), False)
sketch17.addConstraint(Sketcher.Constraint("Coincident", 0, 2, 1, 1))
sketch17.addConstraint(Sketcher.Constraint("Coincident", 1, 2, 2, 1))
sketch17.addConstraint(Sketcher.Constraint("Coincident", 2, 2, 3, 1))
sketch17.addConstraint(Sketcher.Constraint("Coincident", 3, 2, 0, 1))
sketch17.addConstraint(Sketcher.Constraint("Vertical", 0))
sketch17.addConstraint(Sketcher.Constraint("Horizontal", 1))
sketch17.addConstraint(Sketcher.Constraint("Vertical", 2))
sketch17.addConstraint(Sketcher.Constraint("Horizontal", 3))
sketch17.addConstraint(Sketcher.Constraint("DistanceX", 1, 1, 1, 2, 7.0))
sketch17.addConstraint(Sketcher.Constraint("DistanceY", 0, 2, 0, 1, 3.0))
sketch17.addConstraint(Sketcher.Constraint("DistanceX", 0, 2, -1, 1, 16.0))
sketch17.addConstraint(Sketcher.Constraint("DistanceY", 0, 2, -1, 1, 6.0))

sketch18 = body.newObject("Sketcher::SketchObject", "Sketch017")
sketch18.AttachmentSupport = (doc.getObject("XY_Plane"), [""])
sketch18.MapMode = "FlatFace"
sketch18.addGeometry(Part.LineSegment(Vector(0, 0, 0), Vector(0, 144, 0)), False)
sketch18.addConstraint(Sketcher.Constraint("Vertical", 0))
sketch18.addConstraint(Sketcher.Constraint("Coincident", 0, 1, -1, 1))
sketch18.addConstraint(Sketcher.Constraint("DistanceY", 0, 1, 0, 2, 144.0))
doc.recompute()

subtractivepipe6 = body.newObject("PartDesign::SubtractivePipe", "SubtractivePipe005")
subtractivepipe6.Profile = sketch17
subtractivepipe6.Spine = (sketch18, ["Edge1"])

sketch19 = body.newObject("Sketcher::SketchObject", "Sketch018")
sketch19.AttachmentSupport = (doc.getObject("XZ_Plane"), [""])
sketch19.MapMode = "FlatFace"
sketch19.addGeometry(Part.LineSegment(Vector(9, -3, 0), Vector(9, -6, 0)), False)
sketch19.addGeometry(Part.LineSegment(Vector(9, -6, 0), Vector(16, -6, 0)), False)
sketch19.addGeometry(Part.LineSegment(Vector(16, -6, 0), Vector(16, -3, 0)), False)
sketch19.addGeometry(Part.LineSegment(Vector(16, -3, 0), Vector(9, -3, 0)), False)
sketch19.addConstraint(Sketcher.Constraint("Coincident", 0, 2, 1, 1))
sketch19.addConstraint(Sketcher.Constraint("Coincident", 1, 2, 2, 1))
sketch19.addConstraint(Sketcher.Constraint("Coincident", 2, 2, 3, 1))
sketch19.addConstraint(Sketcher.Constraint("Coincident", 3, 2, 0, 1))
sketch19.addConstraint(Sketcher.Constraint("Vertical", 0))
sketch19.addConstraint(Sketcher.Constraint("Horizontal", 1))
sketch19.addConstraint(Sketcher.Constraint("Vertical", 2))
sketch19.addConstraint(Sketcher.Constraint("Horizontal", 3))
sketch19.addConstraint(Sketcher.Constraint("DistanceX", 1, 1, 1, 2, 7.0))
sketch19.addConstraint(Sketcher.Constraint("DistanceY", 0, 2, 0, 1, 3.0))
sketch19.addConstraint(Sketcher.Constraint("DistanceX", -1, 1, 0, 2, 9.0))
sketch19.addConstraint(Sketcher.Constraint("DistanceY", 0, 2, -1, 1, 6.0))

sketch20 = body.newObject("Sketcher::SketchObject", "Sketch019")
sketch20.AttachmentSupport = (doc.getObject("XY_Plane"), [""])
sketch20.MapMode = "FlatFace"
sketch20.addGeometry(Part.ArcOfCircle(Part.Circle(Vector(-222, 0, 0), Vector(0, 0, 1), 222), math.radians(0), math.radians(36)), False)
sketch20.addConstraint(Sketcher.Constraint("Coincident", 0, 1, -1, 1))
sketch20.addConstraint(Sketcher.Constraint("Radius", 0, 221.999993))
sketch20.addConstraint(Sketcher.Constraint("DistanceX", 0, 2, -1, 1, 42.398227))
sketch20.addConstraint(Sketcher.Constraint("DistanceY", -1, 1, 0, 2, 130.488326))
doc.recompute()

subtractivepipe7 = body.newObject("PartDesign::SubtractivePipe", "SubtractivePipe006")
subtractivepipe7.Profile = sketch19
subtractivepipe7.Spine = (sketch20, ["Edge1"])
body2 = doc.addObject("PartDesign::Body", "Body001")

sketch21 = body2.newObject("Sketcher::SketchObject", "Sketch020")
sketch21.AttachmentSupport = (doc.getObject("XY_Plane001"), [""])
sketch21.MapMode = "FlatFace"
sketch21.addGeometry(Part.LineSegment(Vector(3, 0, 0), Vector(-3, 0, 0)), False)
sketch21.addGeometry(Part.LineSegment(Vector(-3, 0, 0), Vector(-3, -8, 0)), False)
sketch21.addGeometry(Part.ArcOfCircle(Part.Circle(Vector(0, -12, 0), Vector(0, 0, 1), 5), math.radians(127), math.radians(413)), False)
sketch21.addGeometry(Part.LineSegment(Vector(3, -8, 0), Vector(3, 0, 0)), False)
sketch21.addConstraint(Sketcher.Constraint("Coincident", 0, 2, 1, 1))
sketch21.addConstraint(Sketcher.Constraint("Coincident", 1, 2, 2, 1))
sketch21.addConstraint(Sketcher.Constraint("Coincident", 2, 2, 3, 1))
sketch21.addConstraint(Sketcher.Constraint("Coincident", 3, 2, 0, 1))
sketch21.addConstraint(Sketcher.Constraint("Horizontal", 0))
sketch21.addConstraint(Sketcher.Constraint("Vertical", 1))
sketch21.addConstraint(Sketcher.Constraint("Vertical", 3))
sketch21.addConstraint(Sketcher.Constraint("Symmetric", 0, 2, 3, 2, -1, 1))
sketch21.addConstraint(Sketcher.Constraint("PointOnObject", 2, 3, -2))
sketch21.addConstraint(Sketcher.Constraint("Radius", 2, 5.0))
sketch21.addConstraint(Sketcher.Constraint("DistanceX", 0, 2, 0, 1, 6.0))
sketch21.addConstraint(Sketcher.Constraint("DistanceY", 1, 2, 1, 1, 8.0))
pad1 = body2.newObject("PartDesign::Pad", "Pad")
pad1.Profile = sketch21
pad1.Length = 12
pad1.Midplane = True

doc.recompute()
